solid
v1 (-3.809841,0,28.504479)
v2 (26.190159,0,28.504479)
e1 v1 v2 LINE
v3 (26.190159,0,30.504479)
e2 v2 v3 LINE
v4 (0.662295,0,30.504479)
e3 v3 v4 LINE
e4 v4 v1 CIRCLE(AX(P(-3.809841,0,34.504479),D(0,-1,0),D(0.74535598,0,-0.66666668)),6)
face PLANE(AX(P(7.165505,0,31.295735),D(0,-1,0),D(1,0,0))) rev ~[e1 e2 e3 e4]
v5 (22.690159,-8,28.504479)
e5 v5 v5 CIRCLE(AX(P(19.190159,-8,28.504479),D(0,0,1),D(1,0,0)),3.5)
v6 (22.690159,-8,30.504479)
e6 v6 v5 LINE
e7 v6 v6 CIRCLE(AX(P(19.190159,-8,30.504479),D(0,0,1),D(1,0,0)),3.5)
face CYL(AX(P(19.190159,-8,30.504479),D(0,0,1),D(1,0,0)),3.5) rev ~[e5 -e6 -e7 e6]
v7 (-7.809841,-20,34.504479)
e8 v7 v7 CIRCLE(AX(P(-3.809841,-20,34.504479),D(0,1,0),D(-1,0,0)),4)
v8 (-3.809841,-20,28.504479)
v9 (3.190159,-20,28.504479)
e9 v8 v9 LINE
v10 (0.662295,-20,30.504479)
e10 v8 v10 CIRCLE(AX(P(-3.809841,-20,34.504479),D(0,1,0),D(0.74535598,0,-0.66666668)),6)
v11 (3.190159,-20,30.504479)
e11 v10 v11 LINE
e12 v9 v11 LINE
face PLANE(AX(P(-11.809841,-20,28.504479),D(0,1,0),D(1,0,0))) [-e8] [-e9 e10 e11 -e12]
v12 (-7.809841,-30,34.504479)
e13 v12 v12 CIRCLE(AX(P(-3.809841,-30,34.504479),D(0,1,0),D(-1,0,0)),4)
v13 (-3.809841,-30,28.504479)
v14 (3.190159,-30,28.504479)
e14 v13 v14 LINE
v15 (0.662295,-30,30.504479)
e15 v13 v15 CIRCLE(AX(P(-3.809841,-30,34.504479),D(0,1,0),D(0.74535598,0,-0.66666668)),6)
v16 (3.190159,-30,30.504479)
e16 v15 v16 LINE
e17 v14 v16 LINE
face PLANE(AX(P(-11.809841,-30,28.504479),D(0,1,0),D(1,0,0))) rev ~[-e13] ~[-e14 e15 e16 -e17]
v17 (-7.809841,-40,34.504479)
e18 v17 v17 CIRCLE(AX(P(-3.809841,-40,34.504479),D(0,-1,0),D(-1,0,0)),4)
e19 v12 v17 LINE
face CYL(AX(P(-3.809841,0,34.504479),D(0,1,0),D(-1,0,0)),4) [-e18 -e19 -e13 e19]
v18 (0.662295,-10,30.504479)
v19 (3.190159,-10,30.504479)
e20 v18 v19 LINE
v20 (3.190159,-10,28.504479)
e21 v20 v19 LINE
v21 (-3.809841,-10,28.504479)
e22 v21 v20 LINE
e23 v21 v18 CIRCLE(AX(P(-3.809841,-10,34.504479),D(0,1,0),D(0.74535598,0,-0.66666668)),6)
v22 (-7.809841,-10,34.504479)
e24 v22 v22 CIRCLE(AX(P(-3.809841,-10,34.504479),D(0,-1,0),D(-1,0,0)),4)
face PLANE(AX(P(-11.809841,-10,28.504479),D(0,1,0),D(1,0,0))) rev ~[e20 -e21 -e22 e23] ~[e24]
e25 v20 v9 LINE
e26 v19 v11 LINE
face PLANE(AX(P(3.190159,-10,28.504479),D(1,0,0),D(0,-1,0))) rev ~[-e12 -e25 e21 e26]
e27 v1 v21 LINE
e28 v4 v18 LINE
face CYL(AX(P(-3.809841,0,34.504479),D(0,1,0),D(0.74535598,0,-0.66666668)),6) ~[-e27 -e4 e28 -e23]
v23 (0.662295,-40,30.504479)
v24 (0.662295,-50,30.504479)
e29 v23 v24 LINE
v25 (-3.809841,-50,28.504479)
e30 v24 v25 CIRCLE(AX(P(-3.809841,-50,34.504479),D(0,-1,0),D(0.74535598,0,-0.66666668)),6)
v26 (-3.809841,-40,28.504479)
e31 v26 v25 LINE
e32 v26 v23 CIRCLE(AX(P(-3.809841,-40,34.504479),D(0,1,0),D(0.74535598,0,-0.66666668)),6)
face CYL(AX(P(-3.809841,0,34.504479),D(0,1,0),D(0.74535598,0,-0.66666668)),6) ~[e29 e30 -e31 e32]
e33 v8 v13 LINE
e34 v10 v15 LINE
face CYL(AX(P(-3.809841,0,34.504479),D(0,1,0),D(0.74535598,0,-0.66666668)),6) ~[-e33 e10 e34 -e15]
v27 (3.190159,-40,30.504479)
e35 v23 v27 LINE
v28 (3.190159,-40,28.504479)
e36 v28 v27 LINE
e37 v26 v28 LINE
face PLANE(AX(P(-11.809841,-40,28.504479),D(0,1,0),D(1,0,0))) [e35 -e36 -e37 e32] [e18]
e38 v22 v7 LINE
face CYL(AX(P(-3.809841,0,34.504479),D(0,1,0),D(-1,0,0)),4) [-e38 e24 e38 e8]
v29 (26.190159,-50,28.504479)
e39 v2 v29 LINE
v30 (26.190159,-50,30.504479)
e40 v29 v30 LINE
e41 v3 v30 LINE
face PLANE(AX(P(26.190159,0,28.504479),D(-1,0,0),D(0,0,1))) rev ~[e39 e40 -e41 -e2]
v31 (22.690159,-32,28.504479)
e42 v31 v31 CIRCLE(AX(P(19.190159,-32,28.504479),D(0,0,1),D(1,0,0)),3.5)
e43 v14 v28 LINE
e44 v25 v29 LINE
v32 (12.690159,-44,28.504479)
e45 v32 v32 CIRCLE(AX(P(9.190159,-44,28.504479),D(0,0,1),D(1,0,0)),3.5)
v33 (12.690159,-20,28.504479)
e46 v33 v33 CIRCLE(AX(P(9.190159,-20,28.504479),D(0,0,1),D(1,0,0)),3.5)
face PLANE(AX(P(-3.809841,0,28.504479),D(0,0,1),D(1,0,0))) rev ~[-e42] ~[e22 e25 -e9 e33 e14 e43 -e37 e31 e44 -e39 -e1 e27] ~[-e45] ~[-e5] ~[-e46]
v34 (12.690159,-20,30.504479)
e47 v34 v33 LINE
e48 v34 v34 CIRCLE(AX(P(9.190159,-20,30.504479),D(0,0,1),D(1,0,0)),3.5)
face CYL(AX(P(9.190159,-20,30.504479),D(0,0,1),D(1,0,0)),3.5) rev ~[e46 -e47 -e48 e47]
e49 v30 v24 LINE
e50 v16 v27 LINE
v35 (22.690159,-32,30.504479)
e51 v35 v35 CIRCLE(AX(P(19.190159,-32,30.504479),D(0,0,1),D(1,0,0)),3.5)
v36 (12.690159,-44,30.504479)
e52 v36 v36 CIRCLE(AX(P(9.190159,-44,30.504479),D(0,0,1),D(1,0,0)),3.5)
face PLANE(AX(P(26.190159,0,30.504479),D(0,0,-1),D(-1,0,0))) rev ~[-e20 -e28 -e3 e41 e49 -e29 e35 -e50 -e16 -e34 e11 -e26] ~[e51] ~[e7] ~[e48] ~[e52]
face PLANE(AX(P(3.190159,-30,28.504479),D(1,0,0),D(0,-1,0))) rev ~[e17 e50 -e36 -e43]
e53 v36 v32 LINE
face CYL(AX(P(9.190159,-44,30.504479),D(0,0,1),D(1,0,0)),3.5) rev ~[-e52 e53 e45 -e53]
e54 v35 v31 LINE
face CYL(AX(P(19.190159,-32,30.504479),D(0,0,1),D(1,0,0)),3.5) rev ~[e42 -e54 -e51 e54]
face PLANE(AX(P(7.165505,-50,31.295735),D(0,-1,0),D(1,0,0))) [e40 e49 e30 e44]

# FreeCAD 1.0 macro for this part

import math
import FreeCAD as App
import Part
import Sketcher
from FreeCAD import Vector
Q = App.Units.Quantity


def add_polygon(sketch, points):
    """Adds a closed chain of lines whose ends are joined by coincident constraints."""
    first, n = sketch.GeometryCount, len(points)
    for a, b in zip(points, points[1:] + points[:1]):
        sketch.addGeometry(Part.LineSegment(App.Vector(*a, 0), App.Vector(*b, 0)), False)
    for i in range(n):
        sketch.addConstraint(Sketcher.Constraint("Coincident", first + i, 2, first + (i + 1) % n, 1))

doc = App.newDocument("Part")
body = doc.addObject("PartDesign::Body", "Body")

# Sketch on XZ plane
sketch1 = doc.addObject("Sketcher::SketchObject", "Sketch")
body.addObject(sketch1)
sketch1.AttachmentSupport = (doc.XZ_Plane, [""])
sketch1.MapMode = "FlatFace"
sketch1.addGeometry([
    Part.LineSegment(Vector(26.2, 30.5, 0), Vector(0.7, 30.5, 0)),  # 0
    Part.ArcOfCircle(Part.Circle(Vector(-3.8, 34.5, 0), Vector(0, 0, 1), 6), math.radians(-42), math.radians(270)),  # 1
    Part.LineSegment(Vector(-3.8, 28.5, 0), Vector(26.2, 28.5, 0)),  # 2
    Part.LineSegment(Vector(26.2, 28.5, 0), Vector(26.2, 30.5, 0)),  # 3
    Part.Circle(Vector(-3.8, 34.5, 0), Vector(0, 0, 1), 4),  # 4
], False)
sketch1.addConstraint([
    Sketcher.Constraint("Coincident", 0, 2, 1, 1),
    Sketcher.Constraint("Tangent", 1, 2, 2, 1),
    Sketcher.Constraint("Coincident", 2, 2, 3, 1),
    Sketcher.Constraint("Coincident", 3, 2, 0, 1),
    Sketcher.Constraint("Horizontal", 0),
    Sketcher.Constraint("Horizontal", 2),
    Sketcher.Constraint("Vertical", 3),
    Sketcher.Constraint("Coincident", 4, 3, 1, 3),
    Sketcher.Constraint("Diameter", 4, Q("8 mm")),
    Sketcher.Constraint("Radius", 1, Q("6 mm")),
    Sketcher.Constraint("DistanceX", 2, 1, 2, 2, Q("30 mm")),
    Sketcher.Constraint("DistanceY", 3, 1, 3, 2, Q("2 mm")),
    Sketcher.Constraint("DistanceX", 1, 3, -1, 1, Q("3.809841 mm")),
    Sketcher.Constraint("DistanceY", -1, 1, 1, 3, Q("34.504479 mm")),
])
pad1 = doc.addObject("PartDesign::Pad", "Pad")
body.addObject(pad1)
pad1.Profile = sketch1
pad1.Length = 50

# Sketch on XY plane
sketch2 = doc.addObject("Sketcher::SketchObject", "Sketch001")
body.addObject(sketch2)
sketch2.AttachmentSupport = (doc.XY_Plane, [""])
sketch2.MapMode = "FlatFace"
sketch2.AttachmentOffset = App.Placement(Vector(0, 0, 30.504479), App.Rotation())
sketch2.addGeometry([
    Part.Circle(Vector(19.2, -32, 0), Vector(0, 0, 1), 3.5),
    Part.Circle(Vector(9.2, -44, 0), Vector(0, 0, 1), 3.5),
    Part.Circle(Vector(9.2, -20, 0), Vector(0, 0, 1), 3.5),
    Part.Circle(Vector(19.2, -8, 0), Vector(0, 0, 1), 3.5),
], False)
sketch2.addConstraint([
    Sketcher.Constraint("Equal", 0, 1),
    Sketcher.Constraint("Equal", 1, 2),
    Sketcher.Constraint("Equal", 2, 3),
    Sketcher.Constraint("Vertical", 1, 3, 2, 3),
    Sketcher.Constraint("Vertical", 0, 3, 3, 3),
    Sketcher.Constraint("Diameter", 0, Q("7 mm")),
    Sketcher.Constraint("DistanceY", 0, 3, -1, 1, Q("32 mm")),
    Sketcher.Constraint("DistanceY", 1, 3, -1, 1, Q("44 mm")),
    Sketcher.Constraint("DistanceY", 2, 3, -1, 1, Q("20 mm")),
    Sketcher.Constraint("DistanceY", 3, 3, -1, 1, Q("8 mm")),
    Sketcher.Constraint("DistanceX", 1, 3, 0, 3, Q("10 mm")),
    Sketcher.Constraint("DistanceX", -1, 1, 0, 3, Q("19.190159 mm")),
])
pocket1 = doc.addObject("PartDesign::Pocket", "Pocket")
body.addObject(pocket1)
pocket1.Profile = sketch2
pocket1.Type = "ThroughAll"

# Sketch on XY plane
sketch3 = doc.addObject("Sketcher::SketchObject", "Sketch002")
body.addObject(sketch3)
sketch3.AttachmentSupport = (doc.XY_Plane, [""])
sketch3.MapMode = "FlatFace"
sketch3.AttachmentOffset = App.Placement(Vector(0, 0, 28.504479), App.Rotation())
add_polygon(sketch3, [(-12, -40), (-12, -30), (3, -30), (3, -40)])  # lines 0-3
add_polygon(sketch3, [(-12, -20), (-12, -10), (3, -10), (3, -20)])  # lines 4-7
sketch3.addConstraint([
    Sketcher.Constraint("Vertical", 0),
    Sketcher.Constraint("Horizontal", 1),
    Sketcher.Constraint("Vertical", 2),
    Sketcher.Constraint("Horizontal", 3),
    Sketcher.Constraint("Vertical", 4),
    Sketcher.Constraint("Horizontal", 5),
    Sketcher.Constraint("Vertical", 6),
    Sketcher.Constraint("Horizontal", 7),
    Sketcher.Constraint("Vertical", 3, 2, 4, 2),
    Sketcher.Constraint("Vertical", 2, 2, 5, 2),
    Sketcher.Constraint("Equal", 2, 4),
    Sketcher.Constraint("DistanceX", 1, 1, 1, 2, Q("15 mm")),
    Sketcher.Constraint("DistanceY", 0, 1, 0, 2, Q("10 mm")),
    Sketcher.Constraint("DistanceY", 0, 2, -1, 1, Q("30 mm")),
    Sketcher.Constraint("DistanceY", 4, 2, -1, 1, Q("10 mm")),
    Sketcher.Constraint("DistanceX", 0, 2, -1, 1, Q("11.809841 mm")),
])
pocket2 = doc.addObject("PartDesign::Pocket", "Pocket001")
body.addObject(pocket2)
pocket2.Profile = sketch3
pocket2.Length = 25
pocket2.Reversed = True

# Sketch on XZ plane
sketch4 = doc.addObject("Sketcher::SketchObject", "Sketch003")
body.addObject(sketch4)
sketch4.AttachmentSupport = (doc.XZ_Plane, [""])
sketch4.MapMode = "FlatFace"
sketch4.addGeometry(Part.Circle(Vector(-3.8, 34.5, 0), Vector(0, 0, 1), 4), False)
sketch4.addConstraint([
    Sketcher.Constraint("Diameter", 0, Q("8 mm")),
    Sketcher.Constraint("DistanceX", 0, 3, -1, 1, Q("3.809841 mm")),
    Sketcher.Constraint("DistanceY", -1, 1, 0, 3, Q("34.504479 mm")),
])
pad2 = doc.addObject("PartDesign::Pad", "Pad001")
body.addObject(pad2)
pad2.Profile = sketch4
pad2.Length = 50

doc.recompute()
